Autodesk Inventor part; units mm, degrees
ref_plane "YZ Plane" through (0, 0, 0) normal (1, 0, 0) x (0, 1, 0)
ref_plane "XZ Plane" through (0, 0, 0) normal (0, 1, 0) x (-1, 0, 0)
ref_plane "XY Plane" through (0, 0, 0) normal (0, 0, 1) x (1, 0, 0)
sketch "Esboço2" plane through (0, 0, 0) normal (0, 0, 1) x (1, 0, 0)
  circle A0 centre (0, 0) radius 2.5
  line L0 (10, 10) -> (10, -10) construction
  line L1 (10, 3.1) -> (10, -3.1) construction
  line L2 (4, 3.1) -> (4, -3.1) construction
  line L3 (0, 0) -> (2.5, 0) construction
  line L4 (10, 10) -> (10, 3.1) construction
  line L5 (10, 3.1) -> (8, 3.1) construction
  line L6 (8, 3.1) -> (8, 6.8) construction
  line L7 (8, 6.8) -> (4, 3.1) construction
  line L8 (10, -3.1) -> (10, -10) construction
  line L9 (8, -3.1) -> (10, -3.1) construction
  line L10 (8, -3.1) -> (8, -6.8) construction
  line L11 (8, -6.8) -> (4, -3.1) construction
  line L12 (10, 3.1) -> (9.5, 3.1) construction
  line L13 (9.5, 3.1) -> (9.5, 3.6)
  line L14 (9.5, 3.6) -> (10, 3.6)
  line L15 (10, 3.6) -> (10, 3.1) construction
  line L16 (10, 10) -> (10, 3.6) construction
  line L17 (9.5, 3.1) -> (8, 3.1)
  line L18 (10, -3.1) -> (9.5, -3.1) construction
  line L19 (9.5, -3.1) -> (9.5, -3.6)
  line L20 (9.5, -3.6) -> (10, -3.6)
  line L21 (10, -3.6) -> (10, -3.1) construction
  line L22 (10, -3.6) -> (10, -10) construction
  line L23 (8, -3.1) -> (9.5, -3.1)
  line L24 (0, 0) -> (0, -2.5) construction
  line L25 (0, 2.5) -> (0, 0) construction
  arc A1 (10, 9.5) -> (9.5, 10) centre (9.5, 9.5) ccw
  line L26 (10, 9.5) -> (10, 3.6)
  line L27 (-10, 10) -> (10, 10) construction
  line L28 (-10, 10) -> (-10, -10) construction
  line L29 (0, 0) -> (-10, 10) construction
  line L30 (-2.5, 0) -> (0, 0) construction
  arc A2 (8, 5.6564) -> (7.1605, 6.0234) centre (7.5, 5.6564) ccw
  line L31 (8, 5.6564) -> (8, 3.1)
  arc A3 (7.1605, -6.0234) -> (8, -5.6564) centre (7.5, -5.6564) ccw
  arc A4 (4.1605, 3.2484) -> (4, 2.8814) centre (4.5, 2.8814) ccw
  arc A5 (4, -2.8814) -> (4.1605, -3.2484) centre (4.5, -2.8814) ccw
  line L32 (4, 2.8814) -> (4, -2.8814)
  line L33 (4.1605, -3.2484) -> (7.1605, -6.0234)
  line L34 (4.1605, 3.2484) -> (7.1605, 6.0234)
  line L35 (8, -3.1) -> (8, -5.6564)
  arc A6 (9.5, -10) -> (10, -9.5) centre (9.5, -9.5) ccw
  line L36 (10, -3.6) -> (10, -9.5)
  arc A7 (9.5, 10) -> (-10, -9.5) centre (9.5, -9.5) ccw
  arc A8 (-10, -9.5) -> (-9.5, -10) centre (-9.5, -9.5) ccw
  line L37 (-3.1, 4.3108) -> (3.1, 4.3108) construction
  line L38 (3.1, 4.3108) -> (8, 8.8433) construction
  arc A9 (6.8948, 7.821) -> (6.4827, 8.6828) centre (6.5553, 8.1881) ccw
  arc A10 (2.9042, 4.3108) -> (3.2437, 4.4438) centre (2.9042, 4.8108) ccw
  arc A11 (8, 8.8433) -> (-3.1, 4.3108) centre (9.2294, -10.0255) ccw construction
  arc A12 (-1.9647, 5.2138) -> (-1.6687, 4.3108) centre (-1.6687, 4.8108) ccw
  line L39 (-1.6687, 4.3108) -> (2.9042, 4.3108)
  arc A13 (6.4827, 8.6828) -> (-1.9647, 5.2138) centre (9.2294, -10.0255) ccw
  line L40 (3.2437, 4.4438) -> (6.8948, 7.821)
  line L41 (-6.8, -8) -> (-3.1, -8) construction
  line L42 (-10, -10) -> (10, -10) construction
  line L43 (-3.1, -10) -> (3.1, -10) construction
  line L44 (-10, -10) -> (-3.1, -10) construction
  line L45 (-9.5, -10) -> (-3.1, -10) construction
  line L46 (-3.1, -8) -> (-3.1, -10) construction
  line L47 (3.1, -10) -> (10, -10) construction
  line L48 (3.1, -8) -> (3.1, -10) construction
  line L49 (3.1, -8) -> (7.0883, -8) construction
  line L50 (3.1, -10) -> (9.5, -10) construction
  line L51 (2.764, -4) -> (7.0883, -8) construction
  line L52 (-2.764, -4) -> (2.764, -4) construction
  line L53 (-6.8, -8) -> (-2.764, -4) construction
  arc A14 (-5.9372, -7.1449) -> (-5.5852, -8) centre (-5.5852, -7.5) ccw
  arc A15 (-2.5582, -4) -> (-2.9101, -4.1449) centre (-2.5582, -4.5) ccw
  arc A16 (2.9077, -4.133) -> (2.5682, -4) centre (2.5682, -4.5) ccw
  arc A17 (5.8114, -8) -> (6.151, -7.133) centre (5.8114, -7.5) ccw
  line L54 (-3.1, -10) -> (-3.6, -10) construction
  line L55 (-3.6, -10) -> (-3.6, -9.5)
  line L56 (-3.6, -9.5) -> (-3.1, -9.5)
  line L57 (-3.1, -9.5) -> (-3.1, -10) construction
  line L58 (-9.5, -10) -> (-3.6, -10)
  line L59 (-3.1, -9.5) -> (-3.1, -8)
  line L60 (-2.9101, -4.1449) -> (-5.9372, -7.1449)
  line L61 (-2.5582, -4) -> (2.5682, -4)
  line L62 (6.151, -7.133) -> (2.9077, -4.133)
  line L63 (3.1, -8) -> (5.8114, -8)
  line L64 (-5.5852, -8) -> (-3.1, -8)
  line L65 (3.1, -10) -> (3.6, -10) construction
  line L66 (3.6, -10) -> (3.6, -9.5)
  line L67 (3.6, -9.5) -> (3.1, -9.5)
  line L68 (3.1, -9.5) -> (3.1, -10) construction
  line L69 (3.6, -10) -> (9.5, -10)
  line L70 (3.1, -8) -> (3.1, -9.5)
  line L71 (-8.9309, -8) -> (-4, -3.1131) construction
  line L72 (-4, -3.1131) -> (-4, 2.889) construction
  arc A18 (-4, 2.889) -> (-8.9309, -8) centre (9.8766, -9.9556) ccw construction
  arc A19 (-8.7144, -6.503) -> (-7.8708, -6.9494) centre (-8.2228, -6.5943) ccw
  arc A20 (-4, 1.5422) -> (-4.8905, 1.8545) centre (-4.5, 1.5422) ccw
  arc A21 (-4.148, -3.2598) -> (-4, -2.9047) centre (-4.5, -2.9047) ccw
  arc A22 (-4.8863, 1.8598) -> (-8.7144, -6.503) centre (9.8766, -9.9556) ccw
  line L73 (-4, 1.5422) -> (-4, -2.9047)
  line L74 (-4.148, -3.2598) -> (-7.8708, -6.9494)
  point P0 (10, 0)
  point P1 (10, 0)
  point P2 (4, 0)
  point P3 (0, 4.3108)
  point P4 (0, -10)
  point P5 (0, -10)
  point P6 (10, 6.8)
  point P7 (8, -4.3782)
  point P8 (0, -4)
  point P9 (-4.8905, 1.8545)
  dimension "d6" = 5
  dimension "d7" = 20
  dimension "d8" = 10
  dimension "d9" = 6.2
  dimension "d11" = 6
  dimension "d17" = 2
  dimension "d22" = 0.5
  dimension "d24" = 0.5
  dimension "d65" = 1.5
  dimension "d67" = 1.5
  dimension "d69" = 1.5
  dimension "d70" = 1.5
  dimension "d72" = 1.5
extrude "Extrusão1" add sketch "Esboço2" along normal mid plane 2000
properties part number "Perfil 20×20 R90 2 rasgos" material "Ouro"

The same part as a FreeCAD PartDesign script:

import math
import FreeCAD as App
import Part
import Sketcher
Q = App.Units.Quantity

doc = App.newDocument("Part")
body = doc.addObject("PartDesign::Body", "Body")

# Sketch on XY plane
sketch1 = body.newObject("Sketcher::SketchObject", "Sketch")
sketch1.AttachmentSupport = (doc.getObject("XY_Plane"), [""])
sketch1.MapMode = "FlatFace"
sketch1.addGeometry([
    Part.LineSegment(App.Vector(8, 3.1, 0), App.Vector(9.5, 3.1, 0)),  # 0
    Part.LineSegment(App.Vector(9.5, 3.1, 0), App.Vector(9.5, 3.6, 0)),  # 1
    Part.LineSegment(App.Vector(9.5, 3.6, 0), App.Vector(10, 3.6, 0)),  # 2
    Part.LineSegment(App.Vector(10, 3.6, 0), App.Vector(10, 9.5, 0)),  # 3
    Part.ArcOfCircle(Part.Circle(App.Vector(9.5, 9.5, 0), App.Vector(0, 0, 1), 0.5), math.radians(0), math.radians(90)),  # 4
    Part.ArcOfCircle(Part.Circle(App.Vector(9.5, -9.5, 0), App.Vector(0, 0, 1), 19.5), math.radians(90), math.radians(180)),  # 5
    Part.ArcOfCircle(Part.Circle(App.Vector(-9.5, -9.5, 0), App.Vector(0, 0, 1), 0.5), math.radians(180), math.radians(270)),  # 6
    Part.LineSegment(App.Vector(-9.5, -10, 0), App.Vector(-3.6, -10, 0)),  # 7
    Part.LineSegment(App.Vector(-3.6, -10, 0), App.Vector(-3.6, -9.5, 0)),  # 8
    Part.LineSegment(App.Vector(-3.6, -9.5, 0), App.Vector(-3.1, -9.5, 0)),  # 9
    Part.LineSegment(App.Vector(-3.1, -9.5, 0), App.Vector(-3.1, -8, 0)),  # 10
    Part.LineSegment(App.Vector(-3.1, -8, 0), App.Vector(-5.59, -8, 0)),  # 11
    Part.ArcOfCircle(Part.Circle(App.Vector(-5.59, -7.5, 0), App.Vector(0, 0, 1), 0.5), math.radians(135), math.radians(270)),  # 12
    Part.LineSegment(App.Vector(-5.94, -7.14, 0), App.Vector(-2.91, -4.14, 0)),  # 13
    Part.ArcOfCircle(Part.Circle(App.Vector(-2.56, -4.5, 0), App.Vector(0, 0, 1), 0.5), math.radians(90), math.radians(135)),  # 14
    Part.LineSegment(App.Vector(-2.56, -4, 0), App.Vector(2.57, -4, 0)),  # 15
    Part.ArcOfCircle(Part.Circle(App.Vector(2.57, -4.5, 0), App.Vector(0, 0, 1), 0.5), math.radians(47), math.radians(90)),  # 16
    Part.LineSegment(App.Vector(2.91, -4.13, 0), App.Vector(6.15, -7.13, 0)),  # 17
    Part.ArcOfCircle(Part.Circle(App.Vector(5.81, -7.5, 0), App.Vector(0, 0, 1), 0.5), math.radians(-90), math.radians(47)),  # 18
    Part.LineSegment(App.Vector(5.81, -8, 0), App.Vector(3.1, -8, 0)),  # 19
    Part.LineSegment(App.Vector(3.1, -8, 0), App.Vector(3.1, -9.5, 0)),  # 20
    Part.LineSegment(App.Vector(3.1, -9.5, 0), App.Vector(3.6, -9.5, 0)),  # 21
    Part.LineSegment(App.Vector(3.6, -9.5, 0), App.Vector(3.6, -10, 0)),  # 22
    Part.LineSegment(App.Vector(3.6, -10, 0), App.Vector(9.5, -10, 0)),  # 23
    Part.ArcOfCircle(Part.Circle(App.Vector(9.5, -9.5, 0), App.Vector(0, 0, 1), 0.5), math.radians(-90), math.radians(0)),  # 24
    Part.LineSegment(App.Vector(10, -9.5, 0), App.Vector(10, -3.6, 0)),  # 25
    Part.LineSegment(App.Vector(10, -3.6, 0), App.Vector(9.5, -3.6, 0)),  # 26
    Part.LineSegment(App.Vector(9.5, -3.6, 0), App.Vector(9.5, -3.1, 0)),  # 27
    Part.LineSegment(App.Vector(9.5, -3.1, 0), App.Vector(8, -3.1, 0)),  # 28
    Part.LineSegment(App.Vector(8, -3.1, 0), App.Vector(8, -5.66, 0)),  # 29
    Part.ArcOfCircle(Part.Circle(App.Vector(7.5, -5.66, 0), App.Vector(0, 0, 1), 0.5), math.radians(-133), math.radians(0)),  # 30
    Part.LineSegment(App.Vector(7.16, -6.02, 0), App.Vector(4.16, -3.25, 0)),  # 31
    Part.ArcOfCircle(Part.Circle(App.Vector(4.5, -2.88, 0), App.Vector(0, 0, 1), 0.5), math.radians(180), math.radians(227)),  # 32
    Part.LineSegment(App.Vector(4, -2.88, 0), App.Vector(4, 2.88, 0)),  # 33
    Part.ArcOfCircle(Part.Circle(App.Vector(4.5, 2.88, 0), App.Vector(0, 0, 1), 0.5), math.radians(133), math.radians(180)),  # 34
    Part.LineSegment(App.Vector(4.16, 3.25, 0), App.Vector(7.16, 6.02, 0)),  # 35
    Part.ArcOfCircle(Part.Circle(App.Vector(7.5, 5.66, 0), App.Vector(0, 0, 1), 0.5), math.radians(0), math.radians(133)),  # 36
    Part.LineSegment(App.Vector(8, 5.66, 0), App.Vector(8, 3.1, 0)),  # 37
    Part.ArcOfCircle(Part.Circle(App.Vector(-8.22, -6.59, 0), App.Vector(0, 0, 1), 0.5), math.radians(169), math.radians(315)),  # 38
    Part.ArcOfCircle(Part.Circle(App.Vector(9.88, -9.96, 0), App.Vector(0, 0, 1), 18.91), math.radians(141), math.radians(169)),  # 39
    Part.ArcOfCircle(Part.Circle(App.Vector(-4.5, 1.54, 0), App.Vector(0, 0, 1), 0.5), math.radians(0), math.radians(141)),  # 40
    Part.LineSegment(App.Vector(-4, 1.54, 0), App.Vector(-4, -2.9, 0)),  # 41
    Part.ArcOfCircle(Part.Circle(App.Vector(-4.5, -2.9, 0), App.Vector(0, 0, 1), 0.5), math.radians(-45), math.radians(0)),  # 42
    Part.LineSegment(App.Vector(-4.15, -3.26, 0), App.Vector(-7.87, -6.95, 0)),  # 43
    Part.Circle(App.Vector(0, 0, 0), App.Vector(0, 0, 1), 2.5),  # 44
    Part.ArcOfCircle(Part.Circle(App.Vector(6.56, 8.19, 0), App.Vector(0, 0, 1), 0.5), math.radians(-47), math.radians(98)),  # 45
    Part.LineSegment(App.Vector(6.89, 7.82, 0), App.Vector(3.24, 4.44, 0)),  # 46
    Part.ArcOfCircle(Part.Circle(App.Vector(2.9, 4.81, 0), App.Vector(0, 0, 1), 0.5), math.radians(-90), math.radians(-47)),  # 47
    Part.LineSegment(App.Vector(2.9, 4.31, 0), App.Vector(-1.67, 4.31, 0)),  # 48
    Part.ArcOfCircle(Part.Circle(App.Vector(-1.67, 4.81, 0), App.Vector(0, 0, 1), 0.5), math.radians(126), math.radians(270)),  # 49
    Part.ArcOfCircle(Part.Circle(App.Vector(9.23, -10.03, 0), App.Vector(0, 0, 1), 18.91), math.radians(98), math.radians(126)),  # 50
], False)
sketch1.addConstraint([
    Sketcher.Constraint("Coincident", 0, 2, 1, 1),
    Sketcher.Constraint("Coincident", 1, 2, 2, 1),
    Sketcher.Constraint("Coincident", 2, 2, 3, 1),
    Sketcher.Constraint("Tangent", 3, 2, 4, 1),
    Sketcher.Constraint("Tangent", 4, 2, 5, 1),
    Sketcher.Constraint("Tangent", 5, 2, 6, 1),
    Sketcher.Constraint("Tangent", 6, 2, 7, 1),
    Sketcher.Constraint("Coincident", 7, 2, 8, 1),
    Sketcher.Constraint("Coincident", 8, 2, 9, 1),
    Sketcher.Constraint("Coincident", 9, 2, 10, 1),
    Sketcher.Constraint("Coincident", 10, 2, 11, 1),
    Sketcher.Constraint("Tangent", 11, 2, 12, 2),
    Sketcher.Constraint("Tangent", 12, 1, 13, 1),
    Sketcher.Constraint("Tangent", 13, 2, 14, 2),
    Sketcher.Constraint("Tangent", 14, 1, 15, 1),
    Sketcher.Constraint("Tangent", 15, 2, 16, 2),
    Sketcher.Constraint("Tangent", 16, 1, 17, 1),
    Sketcher.Constraint("Tangent", 17, 2, 18, 2),
    Sketcher.Constraint("Tangent", 18, 1, 19, 1),
    Sketcher.Constraint("Coincident", 19, 2, 20, 1),
    Sketcher.Constraint("Coincident", 20, 2, 21, 1),
    Sketcher.Constraint("Coincident", 21, 2, 22, 1),
    Sketcher.Constraint("Coincident", 22, 2, 23, 1),
    Sketcher.Constraint("Tangent", 23, 2, 24, 1),
    Sketcher.Constraint("Tangent", 24, 2, 25, 1),
    Sketcher.Constraint("Coincident", 25, 2, 26, 1),
    Sketcher.Constraint("Coincident", 26, 2, 27, 1),
    Sketcher.Constraint("Coincident", 27, 2, 28, 1),
    Sketcher.Constraint("Coincident", 28, 2, 29, 1),
    Sketcher.Constraint("Tangent", 29, 2, 30, 2),
    Sketcher.Constraint("Tangent", 30, 1, 31, 1),
    Sketcher.Constraint("Tangent", 31, 2, 32, 2),
    Sketcher.Constraint("Tangent", 32, 1, 33, 1),
    Sketcher.Constraint("Tangent", 33, 2, 34, 2),
    Sketcher.Constraint("Tangent", 34, 1, 35, 1),
    Sketcher.Constraint("Tangent", 35, 2, 36, 2),
    Sketcher.Constraint("Tangent", 36, 1, 37, 1),
    Sketcher.Constraint("Coincident", 37, 2, 0, 1),
    Sketcher.Constraint("Tangent", 38, 1, 39, 2),
    Sketcher.Constraint("Tangent", 39, 1, 40, 2),
    Sketcher.Constraint("Tangent", 40, 1, 41, 1),
    Sketcher.Constraint("Tangent", 41, 2, 42, 2),
    Sketcher.Constraint("Tangent", 42, 1, 43, 1),
    Sketcher.Constraint("Tangent", 43, 2, 38, 2),
    Sketcher.Constraint("Tangent", 45, 1, 46, 1),
    Sketcher.Constraint("Tangent", 46, 2, 47, 2),
    Sketcher.Constraint("Tangent", 47, 1, 48, 1),
    Sketcher.Constraint("Tangent", 48, 2, 49, 2),
    Sketcher.Constraint("Tangent", 49, 1, 50, 2),
    Sketcher.Constraint("Tangent", 50, 1, 45, 2),
    Sketcher.Constraint("Horizontal", 0),
    Sketcher.Constraint("Vertical", 1),
    Sketcher.Constraint("Horizontal", 2),
    Sketcher.Constraint("Vertical", 3),
    Sketcher.Constraint("Horizontal", 7),
    Sketcher.Constraint("Vertical", 8),
    Sketcher.Constraint("Horizontal", 9),
    Sketcher.Constraint("Vertical", 10),
    Sketcher.Constraint("Horizontal", 11),
    Sketcher.Constraint("Horizontal", 15),
    Sketcher.Constraint("Horizontal", 19),
    Sketcher.Constraint("Vertical", 20),
    Sketcher.Constraint("Horizontal", 21),
    Sketcher.Constraint("Vertical", 22),
    Sketcher.Constraint("Horizontal", 23),
    Sketcher.Constraint("Vertical", 25),
    Sketcher.Constraint("Horizontal", 26),
    Sketcher.Constraint("Vertical", 27),
    Sketcher.Constraint("Horizontal", 28),
    Sketcher.Constraint("Vertical", 29),
    Sketcher.Constraint("Vertical", 33),
    Sketcher.Constraint("Vertical", 37),
    Sketcher.Constraint("Vertical", 41),
    Sketcher.Constraint("Horizontal", 48),
    Sketcher.Constraint("Coincident", 44, 3, -1, 1),
    Sketcher.Constraint("Coincident", 24, 3, 5, 3),
    Sketcher.Constraint("Equal", 4, 6),
    Sketcher.Constraint("Equal", 6, 12),
    Sketcher.Constraint("Equal", 12, 14),
    Sketcher.Constraint("Equal", 14, 16),
    Sketcher.Constraint("Equal", 16, 18),
    Sketcher.Constraint("Equal", 18, 24),
    Sketcher.Constraint("Equal", 24, 30),
    Sketcher.Constraint("Equal", 30, 32),
    Sketcher.Constraint("Equal", 32, 34),
    Sketcher.Constraint("Equal", 34, 36),
    Sketcher.Constraint("Equal", 36, 38),
    Sketcher.Constraint("Equal", 38, 40),
    Sketcher.Constraint("Equal", 40, 42),
    Sketcher.Constraint("Equal", 42, 45),
    Sketcher.Constraint("Equal", 45, 47),
    Sketcher.Constraint("Equal", 47, 49),
    Sketcher.Constraint("Equal", 39, 50),
    Sketcher.Constraint("Symmetric", 4, 3, 6, 3, -1, 1),
    Sketcher.Constraint("Symmetric", 5, 3, 6, 3, -2),
    Sketcher.Constraint("Symmetric", 10, 2, 19, 2, -2),
    Sketcher.Constraint("Symmetric", 8, 2, 21, 2, -2),
    Sketcher.Constraint("Symmetric", 30, 3, 36, 3, -1),
    Sketcher.Constraint("Symmetric", 1, 2, 26, 2, -1),
    Sketcher.Constraint("Parallel", 17, 31),
    Sketcher.Constraint("Parallel", 13, 43),
    Sketcher.Constraint("Parallel", 35, 46),
    Sketcher.Constraint("Horizontal", 5, 2, 8, 2),
    Sketcher.Constraint("Vertical", 24, 3, 0, 2),
    Sketcher.Constraint("Vertical", 31, 2, 34, 1),
    Sketcher.Constraint("Equal", 2, 9),
    Sketcher.Constraint("Equal", 26, 1),
    Sketcher.Constraint("Equal", 23, 3),
    Sketcher.Constraint("Equal", 28, 10),
    Sketcher.Constraint("Equal", 22, 27),
    Sketcher.Constraint("Diameter", 44, Q("5 mm")),
    Sketcher.Constraint("Radius", 4, Q("0.5 mm")),
    Sketcher.Constraint("DistanceX", 0, 1, 0, 2, Q("1.5 mm")),
    Sketcher.Constraint("DistanceX", -1, 1, 2, 2, Q("10 mm")),
    Sketcher.Constraint("DistanceX", 7, 1, 7, 2, Q("5.9 mm")),
    Sketcher.Constraint("DistanceY", 14, 1, -1, 1, Q("4 mm")),
    Sketcher.Constraint("DistanceX", -1, 1, 32, 1, Q("4 mm")),
    Sketcher.Constraint("DistanceX", 40, 1, -1, 1, Q("4 mm")),
    Sketcher.Constraint("Angle", 31, Q("137.2312 deg")),
    Sketcher.Constraint("Radius", 39, Q("18.9088 mm")),
    Sketcher.Constraint("DistanceX", 48, 2, 48, 1, Q("4.573 mm")),
    Sketcher.Constraint("DistanceY", 41, 2, 41, 1, Q("4.447 mm")),
    Sketcher.Constraint("DistanceX", 13, 2, -1, 1, Q("2.91 mm")),
    Sketcher.Constraint("DistanceX", 11, 2, 11, 1, Q("2.4852 mm")),
    Sketcher.Constraint("DistanceX", 15, 1, 15, 2, Q("5.1264 mm")),
    Sketcher.Constraint("DistanceY", 29, 2, 29, 1, Q("2.5564 mm")),
    Sketcher.Constraint("DistanceY", -1, 1, 45, 3, Q("8.188 mm")),
    Sketcher.Constraint("DistanceY", 38, 1, -1, 1, Q("6.503 mm")),
    Sketcher.Constraint("Distance", 43, Q("5.2414 mm")),
    Sketcher.Constraint("Distance", 46, Q("4.9735 mm")),
    Sketcher.Constraint("DistanceX", -1, 1, 45, 3, Q("6.5553 mm")),
])
pad1 = body.newObject("PartDesign::Pad", "Pad")
pad1.Profile = sketch1
pad1.Length = 2000
pad1.Midplane = True

doc.recompute()
